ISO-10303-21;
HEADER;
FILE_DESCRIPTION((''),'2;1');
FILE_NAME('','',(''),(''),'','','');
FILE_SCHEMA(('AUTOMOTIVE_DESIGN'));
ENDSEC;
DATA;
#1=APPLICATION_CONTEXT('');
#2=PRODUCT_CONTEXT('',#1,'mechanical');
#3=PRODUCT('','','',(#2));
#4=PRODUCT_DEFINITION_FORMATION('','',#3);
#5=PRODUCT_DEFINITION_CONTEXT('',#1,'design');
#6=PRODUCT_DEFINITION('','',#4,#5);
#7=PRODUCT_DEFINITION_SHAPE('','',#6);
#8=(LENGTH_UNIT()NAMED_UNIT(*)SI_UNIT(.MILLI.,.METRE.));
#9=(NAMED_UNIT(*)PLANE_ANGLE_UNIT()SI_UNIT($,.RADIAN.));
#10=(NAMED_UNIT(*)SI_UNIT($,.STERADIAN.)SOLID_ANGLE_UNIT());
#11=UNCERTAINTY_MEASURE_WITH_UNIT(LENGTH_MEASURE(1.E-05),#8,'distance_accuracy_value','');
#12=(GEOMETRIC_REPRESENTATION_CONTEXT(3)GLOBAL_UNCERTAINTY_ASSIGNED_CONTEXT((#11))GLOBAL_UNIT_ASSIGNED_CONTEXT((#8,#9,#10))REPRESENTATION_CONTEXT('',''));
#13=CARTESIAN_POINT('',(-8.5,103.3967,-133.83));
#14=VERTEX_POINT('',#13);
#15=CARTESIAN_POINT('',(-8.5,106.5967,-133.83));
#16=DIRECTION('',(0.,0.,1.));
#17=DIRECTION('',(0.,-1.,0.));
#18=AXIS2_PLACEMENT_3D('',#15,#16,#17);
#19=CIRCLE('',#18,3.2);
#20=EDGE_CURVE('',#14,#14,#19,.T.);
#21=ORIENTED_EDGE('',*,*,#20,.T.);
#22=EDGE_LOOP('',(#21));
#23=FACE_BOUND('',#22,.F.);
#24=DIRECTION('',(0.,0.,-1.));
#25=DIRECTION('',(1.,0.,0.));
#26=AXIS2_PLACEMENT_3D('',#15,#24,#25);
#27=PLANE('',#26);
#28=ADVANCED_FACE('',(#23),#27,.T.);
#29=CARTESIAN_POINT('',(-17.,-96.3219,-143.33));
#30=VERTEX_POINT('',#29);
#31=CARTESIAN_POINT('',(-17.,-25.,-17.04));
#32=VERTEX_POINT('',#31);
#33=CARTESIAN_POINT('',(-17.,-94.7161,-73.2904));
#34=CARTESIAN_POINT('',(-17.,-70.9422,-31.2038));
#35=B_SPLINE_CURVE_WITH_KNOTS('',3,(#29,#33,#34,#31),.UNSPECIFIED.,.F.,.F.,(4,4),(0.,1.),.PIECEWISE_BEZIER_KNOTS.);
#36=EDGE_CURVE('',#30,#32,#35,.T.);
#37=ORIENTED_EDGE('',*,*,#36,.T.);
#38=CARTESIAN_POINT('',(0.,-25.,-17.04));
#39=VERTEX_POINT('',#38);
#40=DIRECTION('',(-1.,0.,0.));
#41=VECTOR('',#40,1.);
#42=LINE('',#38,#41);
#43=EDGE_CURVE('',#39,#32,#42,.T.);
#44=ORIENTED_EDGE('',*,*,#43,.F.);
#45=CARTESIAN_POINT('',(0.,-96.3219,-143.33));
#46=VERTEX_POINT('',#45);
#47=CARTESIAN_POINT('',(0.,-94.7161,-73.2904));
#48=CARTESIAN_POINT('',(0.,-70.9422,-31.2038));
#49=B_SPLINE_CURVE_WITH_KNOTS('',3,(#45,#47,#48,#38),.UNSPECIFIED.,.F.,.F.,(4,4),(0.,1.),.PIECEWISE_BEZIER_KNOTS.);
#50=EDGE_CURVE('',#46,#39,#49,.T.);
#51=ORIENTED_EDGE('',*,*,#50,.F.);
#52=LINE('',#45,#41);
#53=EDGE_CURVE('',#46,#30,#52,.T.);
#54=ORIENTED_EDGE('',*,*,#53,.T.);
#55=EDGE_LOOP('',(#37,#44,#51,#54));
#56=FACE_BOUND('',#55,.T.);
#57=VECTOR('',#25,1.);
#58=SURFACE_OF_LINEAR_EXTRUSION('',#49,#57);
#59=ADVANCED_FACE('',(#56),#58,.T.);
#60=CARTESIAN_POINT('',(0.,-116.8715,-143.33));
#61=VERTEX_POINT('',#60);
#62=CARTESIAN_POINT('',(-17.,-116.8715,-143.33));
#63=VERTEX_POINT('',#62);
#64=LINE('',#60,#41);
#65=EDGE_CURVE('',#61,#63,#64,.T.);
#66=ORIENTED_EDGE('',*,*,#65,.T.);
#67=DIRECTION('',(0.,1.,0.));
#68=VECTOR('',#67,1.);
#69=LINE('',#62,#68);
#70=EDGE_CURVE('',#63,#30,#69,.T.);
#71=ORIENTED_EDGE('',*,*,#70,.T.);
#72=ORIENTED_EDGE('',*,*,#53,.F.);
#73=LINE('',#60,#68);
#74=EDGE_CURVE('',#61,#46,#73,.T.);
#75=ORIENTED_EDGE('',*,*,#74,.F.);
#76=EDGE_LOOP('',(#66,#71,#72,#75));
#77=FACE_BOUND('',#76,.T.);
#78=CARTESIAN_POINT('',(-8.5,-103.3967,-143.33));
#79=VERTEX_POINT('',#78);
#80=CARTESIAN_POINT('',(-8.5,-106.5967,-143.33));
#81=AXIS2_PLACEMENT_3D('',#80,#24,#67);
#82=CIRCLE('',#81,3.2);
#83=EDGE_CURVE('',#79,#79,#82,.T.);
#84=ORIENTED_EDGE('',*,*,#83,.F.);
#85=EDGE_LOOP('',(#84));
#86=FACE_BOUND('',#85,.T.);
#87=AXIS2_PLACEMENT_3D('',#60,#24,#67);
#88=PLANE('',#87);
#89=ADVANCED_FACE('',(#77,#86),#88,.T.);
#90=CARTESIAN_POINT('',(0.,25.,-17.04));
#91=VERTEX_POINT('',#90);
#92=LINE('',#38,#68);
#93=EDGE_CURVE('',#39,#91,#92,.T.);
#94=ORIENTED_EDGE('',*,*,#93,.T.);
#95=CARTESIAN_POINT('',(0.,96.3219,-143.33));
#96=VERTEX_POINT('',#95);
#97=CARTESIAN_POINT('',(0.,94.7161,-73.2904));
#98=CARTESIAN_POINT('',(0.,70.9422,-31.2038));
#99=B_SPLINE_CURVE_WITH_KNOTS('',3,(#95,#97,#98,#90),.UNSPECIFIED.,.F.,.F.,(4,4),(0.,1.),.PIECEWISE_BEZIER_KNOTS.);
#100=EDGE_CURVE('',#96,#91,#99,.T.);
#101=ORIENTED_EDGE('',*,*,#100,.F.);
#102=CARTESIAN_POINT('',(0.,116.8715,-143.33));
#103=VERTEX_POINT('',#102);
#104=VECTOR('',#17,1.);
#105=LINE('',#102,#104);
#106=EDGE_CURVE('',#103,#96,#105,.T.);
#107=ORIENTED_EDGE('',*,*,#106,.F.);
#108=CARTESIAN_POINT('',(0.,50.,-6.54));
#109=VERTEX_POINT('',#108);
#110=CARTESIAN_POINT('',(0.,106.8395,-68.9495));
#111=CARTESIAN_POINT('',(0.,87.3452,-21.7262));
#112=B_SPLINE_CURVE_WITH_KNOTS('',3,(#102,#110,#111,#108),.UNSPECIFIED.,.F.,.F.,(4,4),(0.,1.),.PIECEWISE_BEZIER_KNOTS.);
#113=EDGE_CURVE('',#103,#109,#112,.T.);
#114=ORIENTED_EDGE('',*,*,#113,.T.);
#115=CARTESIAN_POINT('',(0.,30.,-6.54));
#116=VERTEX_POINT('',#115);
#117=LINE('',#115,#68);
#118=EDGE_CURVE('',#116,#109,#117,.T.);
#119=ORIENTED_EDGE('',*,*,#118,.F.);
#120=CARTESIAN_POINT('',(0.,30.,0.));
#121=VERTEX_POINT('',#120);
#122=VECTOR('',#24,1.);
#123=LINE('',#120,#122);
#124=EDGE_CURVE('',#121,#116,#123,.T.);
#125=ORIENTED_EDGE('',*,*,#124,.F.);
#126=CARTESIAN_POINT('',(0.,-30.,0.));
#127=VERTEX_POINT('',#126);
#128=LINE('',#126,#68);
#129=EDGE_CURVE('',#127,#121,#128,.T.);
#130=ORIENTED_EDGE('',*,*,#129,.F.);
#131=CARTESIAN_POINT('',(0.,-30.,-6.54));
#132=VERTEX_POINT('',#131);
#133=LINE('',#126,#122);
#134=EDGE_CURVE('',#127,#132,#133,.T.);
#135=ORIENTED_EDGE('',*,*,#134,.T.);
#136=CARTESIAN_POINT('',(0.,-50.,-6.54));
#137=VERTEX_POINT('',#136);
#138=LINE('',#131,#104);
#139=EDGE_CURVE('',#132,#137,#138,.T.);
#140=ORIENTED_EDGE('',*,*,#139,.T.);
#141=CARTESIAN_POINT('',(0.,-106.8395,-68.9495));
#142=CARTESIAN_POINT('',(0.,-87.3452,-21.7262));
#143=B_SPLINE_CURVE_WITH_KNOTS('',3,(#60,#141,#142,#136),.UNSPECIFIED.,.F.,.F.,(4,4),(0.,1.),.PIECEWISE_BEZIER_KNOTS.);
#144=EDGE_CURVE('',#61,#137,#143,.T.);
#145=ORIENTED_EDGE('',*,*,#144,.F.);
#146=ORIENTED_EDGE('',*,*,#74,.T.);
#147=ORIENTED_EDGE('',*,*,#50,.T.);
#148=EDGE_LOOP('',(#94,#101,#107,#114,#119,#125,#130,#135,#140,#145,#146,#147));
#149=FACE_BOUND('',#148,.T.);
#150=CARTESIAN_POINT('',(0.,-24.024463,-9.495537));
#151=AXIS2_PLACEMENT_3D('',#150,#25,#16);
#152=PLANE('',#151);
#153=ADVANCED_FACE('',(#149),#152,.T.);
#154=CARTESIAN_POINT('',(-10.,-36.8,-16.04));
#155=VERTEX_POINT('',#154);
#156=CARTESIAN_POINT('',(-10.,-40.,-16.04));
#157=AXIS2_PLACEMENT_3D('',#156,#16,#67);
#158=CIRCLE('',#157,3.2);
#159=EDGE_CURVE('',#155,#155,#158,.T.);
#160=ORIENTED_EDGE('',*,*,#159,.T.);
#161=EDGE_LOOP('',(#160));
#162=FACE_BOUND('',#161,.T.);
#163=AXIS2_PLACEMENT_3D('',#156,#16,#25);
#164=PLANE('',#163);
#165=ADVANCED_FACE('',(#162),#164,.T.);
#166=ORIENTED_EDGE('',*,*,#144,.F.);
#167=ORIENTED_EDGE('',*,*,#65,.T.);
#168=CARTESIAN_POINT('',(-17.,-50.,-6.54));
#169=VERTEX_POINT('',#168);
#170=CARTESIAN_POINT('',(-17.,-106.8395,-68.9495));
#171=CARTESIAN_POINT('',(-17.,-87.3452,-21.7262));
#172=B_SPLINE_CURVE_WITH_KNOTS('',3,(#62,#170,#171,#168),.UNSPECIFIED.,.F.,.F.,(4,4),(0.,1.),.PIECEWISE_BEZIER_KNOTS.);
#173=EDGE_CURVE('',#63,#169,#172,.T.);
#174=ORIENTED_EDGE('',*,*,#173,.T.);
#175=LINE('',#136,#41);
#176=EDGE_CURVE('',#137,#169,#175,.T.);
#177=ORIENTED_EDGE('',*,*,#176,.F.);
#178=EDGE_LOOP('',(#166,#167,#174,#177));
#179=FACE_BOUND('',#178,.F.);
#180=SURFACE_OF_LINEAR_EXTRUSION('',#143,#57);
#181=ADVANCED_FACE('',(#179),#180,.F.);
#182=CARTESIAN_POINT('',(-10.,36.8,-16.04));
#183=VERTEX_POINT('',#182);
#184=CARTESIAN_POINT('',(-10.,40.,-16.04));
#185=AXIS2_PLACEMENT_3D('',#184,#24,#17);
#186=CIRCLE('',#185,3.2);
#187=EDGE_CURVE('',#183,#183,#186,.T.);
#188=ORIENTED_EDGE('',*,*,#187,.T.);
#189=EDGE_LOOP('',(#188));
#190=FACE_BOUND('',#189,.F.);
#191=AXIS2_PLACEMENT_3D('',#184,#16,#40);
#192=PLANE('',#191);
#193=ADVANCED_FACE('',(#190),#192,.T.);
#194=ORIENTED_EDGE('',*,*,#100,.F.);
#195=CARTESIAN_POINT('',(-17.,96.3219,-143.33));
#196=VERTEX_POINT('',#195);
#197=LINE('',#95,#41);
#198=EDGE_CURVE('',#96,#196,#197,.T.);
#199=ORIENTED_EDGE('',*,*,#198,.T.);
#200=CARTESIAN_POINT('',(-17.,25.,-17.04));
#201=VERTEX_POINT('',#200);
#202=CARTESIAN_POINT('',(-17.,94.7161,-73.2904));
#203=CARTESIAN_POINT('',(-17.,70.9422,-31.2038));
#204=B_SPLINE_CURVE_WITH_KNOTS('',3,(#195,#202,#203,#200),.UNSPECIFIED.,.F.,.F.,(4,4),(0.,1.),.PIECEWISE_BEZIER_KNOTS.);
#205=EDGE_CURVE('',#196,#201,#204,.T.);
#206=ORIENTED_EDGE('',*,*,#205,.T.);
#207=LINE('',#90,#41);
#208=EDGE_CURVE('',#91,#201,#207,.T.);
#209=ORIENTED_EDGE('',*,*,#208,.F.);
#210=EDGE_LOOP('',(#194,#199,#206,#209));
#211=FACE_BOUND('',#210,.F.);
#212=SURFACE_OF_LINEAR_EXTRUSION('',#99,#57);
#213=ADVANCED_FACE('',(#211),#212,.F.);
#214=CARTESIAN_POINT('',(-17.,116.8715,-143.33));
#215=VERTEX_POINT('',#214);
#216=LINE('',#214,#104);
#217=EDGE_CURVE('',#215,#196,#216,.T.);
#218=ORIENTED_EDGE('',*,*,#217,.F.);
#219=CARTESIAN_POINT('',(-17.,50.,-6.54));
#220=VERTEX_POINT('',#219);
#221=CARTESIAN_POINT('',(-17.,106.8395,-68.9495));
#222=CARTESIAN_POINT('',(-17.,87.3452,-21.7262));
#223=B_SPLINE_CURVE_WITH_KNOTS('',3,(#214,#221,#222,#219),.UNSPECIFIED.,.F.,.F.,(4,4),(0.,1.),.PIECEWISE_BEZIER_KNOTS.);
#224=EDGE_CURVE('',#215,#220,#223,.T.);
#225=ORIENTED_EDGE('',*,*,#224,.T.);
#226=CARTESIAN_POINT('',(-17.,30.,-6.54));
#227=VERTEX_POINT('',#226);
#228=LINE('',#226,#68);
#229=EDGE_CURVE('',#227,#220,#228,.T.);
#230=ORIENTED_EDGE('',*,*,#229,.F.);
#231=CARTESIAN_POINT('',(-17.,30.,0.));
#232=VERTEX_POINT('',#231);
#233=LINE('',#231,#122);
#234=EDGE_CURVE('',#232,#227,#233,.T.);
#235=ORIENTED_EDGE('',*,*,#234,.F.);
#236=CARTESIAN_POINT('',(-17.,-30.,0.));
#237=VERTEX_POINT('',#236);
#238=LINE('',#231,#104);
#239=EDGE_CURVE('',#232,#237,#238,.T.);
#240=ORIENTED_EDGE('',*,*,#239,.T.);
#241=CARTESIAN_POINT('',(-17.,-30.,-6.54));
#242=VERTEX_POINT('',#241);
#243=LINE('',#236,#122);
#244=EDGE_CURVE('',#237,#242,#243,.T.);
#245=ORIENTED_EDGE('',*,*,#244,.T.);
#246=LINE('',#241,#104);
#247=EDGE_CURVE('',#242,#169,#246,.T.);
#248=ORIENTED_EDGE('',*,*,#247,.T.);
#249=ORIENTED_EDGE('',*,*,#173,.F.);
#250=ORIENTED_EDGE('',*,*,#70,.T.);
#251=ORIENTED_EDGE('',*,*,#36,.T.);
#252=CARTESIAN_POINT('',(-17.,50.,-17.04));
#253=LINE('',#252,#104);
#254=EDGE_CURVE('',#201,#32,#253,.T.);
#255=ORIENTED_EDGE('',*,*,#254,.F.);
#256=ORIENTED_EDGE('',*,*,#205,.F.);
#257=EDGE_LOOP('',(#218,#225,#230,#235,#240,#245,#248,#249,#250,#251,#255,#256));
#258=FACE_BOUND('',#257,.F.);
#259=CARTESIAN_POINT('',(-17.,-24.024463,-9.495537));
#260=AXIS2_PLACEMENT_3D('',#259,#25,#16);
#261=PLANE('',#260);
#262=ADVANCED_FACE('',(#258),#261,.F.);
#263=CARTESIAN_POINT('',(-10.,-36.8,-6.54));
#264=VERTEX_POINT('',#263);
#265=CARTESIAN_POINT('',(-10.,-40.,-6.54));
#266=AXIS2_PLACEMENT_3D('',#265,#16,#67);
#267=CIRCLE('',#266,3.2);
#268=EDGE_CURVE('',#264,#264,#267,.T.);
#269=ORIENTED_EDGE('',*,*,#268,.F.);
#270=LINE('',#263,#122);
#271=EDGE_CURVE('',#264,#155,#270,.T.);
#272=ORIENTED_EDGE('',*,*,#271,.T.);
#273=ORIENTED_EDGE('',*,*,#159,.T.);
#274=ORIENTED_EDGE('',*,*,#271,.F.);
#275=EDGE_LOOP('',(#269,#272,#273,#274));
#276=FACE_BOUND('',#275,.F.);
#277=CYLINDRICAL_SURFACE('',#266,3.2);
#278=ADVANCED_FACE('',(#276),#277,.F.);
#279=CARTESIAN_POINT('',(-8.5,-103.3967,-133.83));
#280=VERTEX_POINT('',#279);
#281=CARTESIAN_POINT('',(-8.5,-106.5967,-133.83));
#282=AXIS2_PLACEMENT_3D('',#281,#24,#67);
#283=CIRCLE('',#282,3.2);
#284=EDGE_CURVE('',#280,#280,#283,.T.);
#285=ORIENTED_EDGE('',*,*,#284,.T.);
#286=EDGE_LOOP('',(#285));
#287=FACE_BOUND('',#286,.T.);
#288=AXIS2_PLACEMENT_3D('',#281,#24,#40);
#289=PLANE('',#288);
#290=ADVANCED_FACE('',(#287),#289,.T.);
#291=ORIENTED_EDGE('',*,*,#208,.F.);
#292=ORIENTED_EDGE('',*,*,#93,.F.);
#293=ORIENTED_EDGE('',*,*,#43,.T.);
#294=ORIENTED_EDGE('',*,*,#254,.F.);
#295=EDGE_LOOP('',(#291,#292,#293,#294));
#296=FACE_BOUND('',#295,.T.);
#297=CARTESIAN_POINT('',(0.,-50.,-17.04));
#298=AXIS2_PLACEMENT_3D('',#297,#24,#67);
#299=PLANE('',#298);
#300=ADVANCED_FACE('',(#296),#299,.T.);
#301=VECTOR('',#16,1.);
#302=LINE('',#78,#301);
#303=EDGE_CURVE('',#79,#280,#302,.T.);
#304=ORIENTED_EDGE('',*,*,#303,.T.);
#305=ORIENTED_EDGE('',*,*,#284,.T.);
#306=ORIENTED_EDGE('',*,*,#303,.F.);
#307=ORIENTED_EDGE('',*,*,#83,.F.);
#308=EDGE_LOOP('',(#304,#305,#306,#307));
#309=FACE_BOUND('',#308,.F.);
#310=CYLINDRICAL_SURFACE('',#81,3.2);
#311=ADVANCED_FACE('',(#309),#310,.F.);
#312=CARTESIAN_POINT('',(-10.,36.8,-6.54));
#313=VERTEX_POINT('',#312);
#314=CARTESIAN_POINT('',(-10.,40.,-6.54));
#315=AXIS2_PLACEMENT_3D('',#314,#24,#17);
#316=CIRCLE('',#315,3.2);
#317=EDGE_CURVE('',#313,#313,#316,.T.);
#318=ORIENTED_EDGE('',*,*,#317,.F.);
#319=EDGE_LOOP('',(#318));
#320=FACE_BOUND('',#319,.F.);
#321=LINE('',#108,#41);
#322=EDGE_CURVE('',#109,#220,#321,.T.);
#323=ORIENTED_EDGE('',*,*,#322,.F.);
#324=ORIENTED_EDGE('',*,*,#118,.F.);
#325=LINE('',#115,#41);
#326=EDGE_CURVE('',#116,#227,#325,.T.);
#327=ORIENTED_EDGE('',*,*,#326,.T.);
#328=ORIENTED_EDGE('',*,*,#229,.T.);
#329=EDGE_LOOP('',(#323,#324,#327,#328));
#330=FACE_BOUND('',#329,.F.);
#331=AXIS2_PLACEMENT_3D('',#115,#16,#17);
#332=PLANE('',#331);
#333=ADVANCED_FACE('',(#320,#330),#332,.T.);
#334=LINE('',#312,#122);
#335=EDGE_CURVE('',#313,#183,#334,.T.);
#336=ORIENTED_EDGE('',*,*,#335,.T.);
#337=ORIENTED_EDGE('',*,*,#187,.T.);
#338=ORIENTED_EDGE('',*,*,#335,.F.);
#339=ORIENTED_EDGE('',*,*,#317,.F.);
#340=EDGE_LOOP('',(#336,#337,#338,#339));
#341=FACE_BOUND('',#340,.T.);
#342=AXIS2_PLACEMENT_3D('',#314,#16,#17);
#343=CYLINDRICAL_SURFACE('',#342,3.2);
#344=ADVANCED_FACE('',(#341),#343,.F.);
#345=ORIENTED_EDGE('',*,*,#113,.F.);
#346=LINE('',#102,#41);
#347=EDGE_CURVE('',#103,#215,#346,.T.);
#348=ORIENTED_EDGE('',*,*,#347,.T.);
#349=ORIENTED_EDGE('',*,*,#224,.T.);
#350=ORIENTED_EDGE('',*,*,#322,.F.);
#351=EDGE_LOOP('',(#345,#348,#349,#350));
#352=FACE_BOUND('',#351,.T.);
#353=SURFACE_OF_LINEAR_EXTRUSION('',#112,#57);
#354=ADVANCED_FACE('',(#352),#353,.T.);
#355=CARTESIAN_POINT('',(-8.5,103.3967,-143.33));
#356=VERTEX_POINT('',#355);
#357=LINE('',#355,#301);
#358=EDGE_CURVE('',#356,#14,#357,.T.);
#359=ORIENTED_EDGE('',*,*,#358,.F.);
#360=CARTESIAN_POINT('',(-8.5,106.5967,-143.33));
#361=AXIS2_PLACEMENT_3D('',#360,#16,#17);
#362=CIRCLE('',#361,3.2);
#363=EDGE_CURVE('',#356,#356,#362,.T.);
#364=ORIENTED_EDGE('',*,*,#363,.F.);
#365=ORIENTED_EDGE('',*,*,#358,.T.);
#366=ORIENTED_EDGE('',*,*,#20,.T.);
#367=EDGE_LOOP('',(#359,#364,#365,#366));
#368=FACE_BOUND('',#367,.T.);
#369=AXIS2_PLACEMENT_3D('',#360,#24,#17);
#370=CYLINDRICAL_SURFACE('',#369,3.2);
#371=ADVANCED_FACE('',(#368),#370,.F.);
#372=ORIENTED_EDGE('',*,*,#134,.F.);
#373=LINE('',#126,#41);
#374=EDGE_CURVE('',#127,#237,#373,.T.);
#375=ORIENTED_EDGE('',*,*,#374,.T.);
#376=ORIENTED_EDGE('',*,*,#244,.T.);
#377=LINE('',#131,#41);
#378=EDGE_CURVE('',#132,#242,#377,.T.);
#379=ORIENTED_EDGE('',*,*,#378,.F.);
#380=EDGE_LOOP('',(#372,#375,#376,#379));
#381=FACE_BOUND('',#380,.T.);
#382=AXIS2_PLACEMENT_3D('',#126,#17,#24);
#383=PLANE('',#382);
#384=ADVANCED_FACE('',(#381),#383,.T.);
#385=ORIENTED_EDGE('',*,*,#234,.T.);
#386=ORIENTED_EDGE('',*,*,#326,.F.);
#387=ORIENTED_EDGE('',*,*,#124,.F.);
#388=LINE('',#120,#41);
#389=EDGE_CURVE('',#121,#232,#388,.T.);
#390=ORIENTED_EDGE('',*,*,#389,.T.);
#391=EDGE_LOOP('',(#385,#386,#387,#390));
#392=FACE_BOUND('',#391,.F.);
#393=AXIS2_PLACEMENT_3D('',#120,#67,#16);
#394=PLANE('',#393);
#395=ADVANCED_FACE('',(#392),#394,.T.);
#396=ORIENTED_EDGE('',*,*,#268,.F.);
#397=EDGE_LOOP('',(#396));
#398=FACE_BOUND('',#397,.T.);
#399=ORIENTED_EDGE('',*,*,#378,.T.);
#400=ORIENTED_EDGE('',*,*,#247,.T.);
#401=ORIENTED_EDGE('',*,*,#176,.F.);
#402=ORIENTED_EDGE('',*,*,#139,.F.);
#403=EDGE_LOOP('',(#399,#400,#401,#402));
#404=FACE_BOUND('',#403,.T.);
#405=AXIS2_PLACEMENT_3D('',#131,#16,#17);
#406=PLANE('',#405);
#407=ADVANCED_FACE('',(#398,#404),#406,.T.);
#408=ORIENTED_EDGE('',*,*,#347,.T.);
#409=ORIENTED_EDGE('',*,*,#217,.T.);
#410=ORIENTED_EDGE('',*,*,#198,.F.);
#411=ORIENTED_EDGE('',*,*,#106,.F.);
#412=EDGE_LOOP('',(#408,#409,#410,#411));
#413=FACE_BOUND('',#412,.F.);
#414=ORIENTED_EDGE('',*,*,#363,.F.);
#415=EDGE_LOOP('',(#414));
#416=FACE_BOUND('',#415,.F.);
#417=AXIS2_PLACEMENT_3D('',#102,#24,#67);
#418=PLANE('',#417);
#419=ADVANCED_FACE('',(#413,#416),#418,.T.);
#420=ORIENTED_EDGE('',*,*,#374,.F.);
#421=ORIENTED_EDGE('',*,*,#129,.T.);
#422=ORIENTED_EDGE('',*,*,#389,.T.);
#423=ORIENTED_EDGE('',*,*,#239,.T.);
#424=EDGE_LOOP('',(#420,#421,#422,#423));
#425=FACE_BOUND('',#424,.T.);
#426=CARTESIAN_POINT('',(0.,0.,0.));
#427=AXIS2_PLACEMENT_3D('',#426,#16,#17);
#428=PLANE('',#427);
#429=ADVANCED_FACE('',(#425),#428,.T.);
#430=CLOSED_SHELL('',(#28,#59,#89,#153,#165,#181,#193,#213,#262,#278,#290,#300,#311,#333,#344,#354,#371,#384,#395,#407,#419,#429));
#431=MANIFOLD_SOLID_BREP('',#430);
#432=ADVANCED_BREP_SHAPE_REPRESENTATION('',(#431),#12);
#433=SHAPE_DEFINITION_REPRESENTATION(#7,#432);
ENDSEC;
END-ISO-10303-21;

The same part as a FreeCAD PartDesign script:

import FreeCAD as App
import Part
import Sketcher
Q = App.Units.Quantity


def add_polygon(sketch, points):
    """Adds a closed chain of lines whose ends are joined by coincident constraints."""
    first, n = sketch.GeometryCount, len(points)
    for a, b in zip(points, points[1:] + points[:1]):
        sketch.addGeometry(Part.LineSegment(App.Vector(*a, 0), App.Vector(*b, 0)), False)
    for i in range(n):
        sketch.addConstraint(Sketcher.Constraint("Coincident", first + i, 2, first + (i + 1) % n, 1))

doc = App.newDocument("Part")
body = doc.addObject("PartDesign::Body", "Body")

sketch1 = body.newObject("Sketcher::SketchObject", "Sketch")
sketch1.AttachmentSupport = (doc.getObject("YZ_Plane"), [""])
sketch1.MapMode = "FlatFace"
add_polygon(sketch1, [(0, -17.04), (0, 0), (-30, 0), (-30, -6.54), (-50, -6.54), (-50, -17.04)])
sketch1.addConstraint([
    Sketcher.Constraint("Vertical", 0),
    Sketcher.Constraint("Horizontal", 1),
    Sketcher.Constraint("Vertical", 2),
    Sketcher.Constraint("Horizontal", 3),
    Sketcher.Constraint("Vertical", 4),
    Sketcher.Constraint("Horizontal", 5),
    Sketcher.Constraint("Coincident", 0, 2, -1, 1),
    Sketcher.Constraint("DistanceX", 1, 2, 1, 1, Q("30 mm")),
    Sketcher.Constraint("DistanceX", 5, 1, 5, 2, Q("50 mm")),
    Sketcher.Constraint("DistanceY", 4, 2, 4, 1, Q("10.5 mm")),
    Sketcher.Constraint("DistanceY", 0, 1, 0, 2, Q("17.04 mm")),
])
pad1 = body.newObject("PartDesign::Pad", "Pad")
pad1.Profile = sketch1
pad1.Length = 17
pad1.Reversed = True

sketch2 = body.newObject("Sketcher::SketchObject", "Sketch001")
sketch2.AttachmentSupport = (doc.getObject("YZ_Plane"), [""])
sketch2.MapMode = "FlatFace"
sketch2.addGeometry([
    Part.LineSegment(App.Vector(-116.8715, -143.33, 0), App.Vector(-96.3219, -143.33, 0)),
    Part.BSplineCurve([App.Vector(-96.3219, -143.33, 0), App.Vector(-94.7161, -73.2904, 0), App.Vector(-70.9422, -31.2038, 0), App.Vector(-25, -17.04, 0)], [4, 4], [0, 1], False, 3, [1, 1, 1, 1], False),
    Part.LineSegment(App.Vector(-25, -17.04, 0), App.Vector(-50, -6.54, 0)),
    Part.BSplineCurve([App.Vector(-116.8715, -143.33, 0), App.Vector(-106.8395, -68.9495, 0), App.Vector(-87.3452, -21.7262, 0), App.Vector(-50, -6.54, 0)], [4, 4], [0, 1], False, 3, [1, 1, 1, 1], False),
], False)
sketch2.addConstraint([
    Sketcher.Constraint("Block", 1),
    Sketcher.Constraint("Block", 3),
    Sketcher.Constraint("Coincident", 0, 2, 1, 1),
    Sketcher.Constraint("Coincident", 1, 2, 2, 1),
    Sketcher.Constraint("Coincident", 2, 2, 3, 2),
    Sketcher.Constraint("Coincident", 3, 1, 0, 1),
])
pad2 = body.newObject("PartDesign::Pad", "Pad001")
pad2.Profile = sketch2
pad2.Length = 17
pad2.Reversed = True

sketch3 = body.newObject("Sketcher::SketchObject", "Sketch002")
sketch3.AttachmentSupport = (doc.getObject("XY_Plane"), [""])
sketch3.MapMode = "FlatFace"
sketch3.AttachmentOffset = App.Placement(App.Vector(0, 0, -143.33), App.Rotation())
sketch3.addGeometry(Part.Circle(App.Vector(-8.5, -106.5967, 0), App.Vector(0, 0, 1), 3.2), False)
sketch3.addConstraint([
    Sketcher.Constraint("Diameter", 0, Q("6.4 mm")),
    Sketcher.Constraint("DistanceX", 0, 3, -1, 1, Q("8.5 mm")),
    Sketcher.Constraint("DistanceY", 0, 3, -1, 1, Q("106.5967 mm")),
])
pocket1 = body.newObject("PartDesign::Pocket", "Pocket")
pocket1.Profile = sketch3
pocket1.Length = 9.5
pocket1.Reversed = True
doc.recompute()

mirrored = body.newObject("PartDesign::Mirrored", "Mirrored")
mirrored.Originals = [pad1, pad2, pocket1]
mirrored.MirrorPlane = (doc.getObject("XZ_Plane"), [""])
body.Tip = mirrored

sketch4 = body.newObject("Sketcher::SketchObject", "Sketch003")
sketch4.AttachmentSupport = (doc.getObject("XY_Plane"), [""])
sketch4.MapMode = "FlatFace"
sketch4.AttachmentOffset = App.Placement(App.Vector(0, 0, -6.54), App.Rotation())
sketch4.addGeometry(Part.Circle(App.Vector(-10, -40, 0), App.Vector(0, 0, 1), 3.2), False)
sketch4.addConstraint([
    Sketcher.Constraint("Diameter", 0, Q("6.4 mm")),
    Sketcher.Constraint("DistanceX", 0, 3, -1, 1, Q("10 mm")),
    Sketcher.Constraint("DistanceY", 0, 3, -1, 1, Q("40 mm")),
])
pocket2 = body.newObject("PartDesign::Pocket", "Pocket001")
pocket2.Profile = sketch4
pocket2.Length = 9.5
doc.recompute()

mirrored2 = body.newObject("PartDesign::Mirrored", "Mirrored001")
mirrored2.Originals = [pocket2]
mirrored2.MirrorPlane = (doc.getObject("XZ_Plane"), [""])
body.Tip = mirrored2

doc.recompute()
